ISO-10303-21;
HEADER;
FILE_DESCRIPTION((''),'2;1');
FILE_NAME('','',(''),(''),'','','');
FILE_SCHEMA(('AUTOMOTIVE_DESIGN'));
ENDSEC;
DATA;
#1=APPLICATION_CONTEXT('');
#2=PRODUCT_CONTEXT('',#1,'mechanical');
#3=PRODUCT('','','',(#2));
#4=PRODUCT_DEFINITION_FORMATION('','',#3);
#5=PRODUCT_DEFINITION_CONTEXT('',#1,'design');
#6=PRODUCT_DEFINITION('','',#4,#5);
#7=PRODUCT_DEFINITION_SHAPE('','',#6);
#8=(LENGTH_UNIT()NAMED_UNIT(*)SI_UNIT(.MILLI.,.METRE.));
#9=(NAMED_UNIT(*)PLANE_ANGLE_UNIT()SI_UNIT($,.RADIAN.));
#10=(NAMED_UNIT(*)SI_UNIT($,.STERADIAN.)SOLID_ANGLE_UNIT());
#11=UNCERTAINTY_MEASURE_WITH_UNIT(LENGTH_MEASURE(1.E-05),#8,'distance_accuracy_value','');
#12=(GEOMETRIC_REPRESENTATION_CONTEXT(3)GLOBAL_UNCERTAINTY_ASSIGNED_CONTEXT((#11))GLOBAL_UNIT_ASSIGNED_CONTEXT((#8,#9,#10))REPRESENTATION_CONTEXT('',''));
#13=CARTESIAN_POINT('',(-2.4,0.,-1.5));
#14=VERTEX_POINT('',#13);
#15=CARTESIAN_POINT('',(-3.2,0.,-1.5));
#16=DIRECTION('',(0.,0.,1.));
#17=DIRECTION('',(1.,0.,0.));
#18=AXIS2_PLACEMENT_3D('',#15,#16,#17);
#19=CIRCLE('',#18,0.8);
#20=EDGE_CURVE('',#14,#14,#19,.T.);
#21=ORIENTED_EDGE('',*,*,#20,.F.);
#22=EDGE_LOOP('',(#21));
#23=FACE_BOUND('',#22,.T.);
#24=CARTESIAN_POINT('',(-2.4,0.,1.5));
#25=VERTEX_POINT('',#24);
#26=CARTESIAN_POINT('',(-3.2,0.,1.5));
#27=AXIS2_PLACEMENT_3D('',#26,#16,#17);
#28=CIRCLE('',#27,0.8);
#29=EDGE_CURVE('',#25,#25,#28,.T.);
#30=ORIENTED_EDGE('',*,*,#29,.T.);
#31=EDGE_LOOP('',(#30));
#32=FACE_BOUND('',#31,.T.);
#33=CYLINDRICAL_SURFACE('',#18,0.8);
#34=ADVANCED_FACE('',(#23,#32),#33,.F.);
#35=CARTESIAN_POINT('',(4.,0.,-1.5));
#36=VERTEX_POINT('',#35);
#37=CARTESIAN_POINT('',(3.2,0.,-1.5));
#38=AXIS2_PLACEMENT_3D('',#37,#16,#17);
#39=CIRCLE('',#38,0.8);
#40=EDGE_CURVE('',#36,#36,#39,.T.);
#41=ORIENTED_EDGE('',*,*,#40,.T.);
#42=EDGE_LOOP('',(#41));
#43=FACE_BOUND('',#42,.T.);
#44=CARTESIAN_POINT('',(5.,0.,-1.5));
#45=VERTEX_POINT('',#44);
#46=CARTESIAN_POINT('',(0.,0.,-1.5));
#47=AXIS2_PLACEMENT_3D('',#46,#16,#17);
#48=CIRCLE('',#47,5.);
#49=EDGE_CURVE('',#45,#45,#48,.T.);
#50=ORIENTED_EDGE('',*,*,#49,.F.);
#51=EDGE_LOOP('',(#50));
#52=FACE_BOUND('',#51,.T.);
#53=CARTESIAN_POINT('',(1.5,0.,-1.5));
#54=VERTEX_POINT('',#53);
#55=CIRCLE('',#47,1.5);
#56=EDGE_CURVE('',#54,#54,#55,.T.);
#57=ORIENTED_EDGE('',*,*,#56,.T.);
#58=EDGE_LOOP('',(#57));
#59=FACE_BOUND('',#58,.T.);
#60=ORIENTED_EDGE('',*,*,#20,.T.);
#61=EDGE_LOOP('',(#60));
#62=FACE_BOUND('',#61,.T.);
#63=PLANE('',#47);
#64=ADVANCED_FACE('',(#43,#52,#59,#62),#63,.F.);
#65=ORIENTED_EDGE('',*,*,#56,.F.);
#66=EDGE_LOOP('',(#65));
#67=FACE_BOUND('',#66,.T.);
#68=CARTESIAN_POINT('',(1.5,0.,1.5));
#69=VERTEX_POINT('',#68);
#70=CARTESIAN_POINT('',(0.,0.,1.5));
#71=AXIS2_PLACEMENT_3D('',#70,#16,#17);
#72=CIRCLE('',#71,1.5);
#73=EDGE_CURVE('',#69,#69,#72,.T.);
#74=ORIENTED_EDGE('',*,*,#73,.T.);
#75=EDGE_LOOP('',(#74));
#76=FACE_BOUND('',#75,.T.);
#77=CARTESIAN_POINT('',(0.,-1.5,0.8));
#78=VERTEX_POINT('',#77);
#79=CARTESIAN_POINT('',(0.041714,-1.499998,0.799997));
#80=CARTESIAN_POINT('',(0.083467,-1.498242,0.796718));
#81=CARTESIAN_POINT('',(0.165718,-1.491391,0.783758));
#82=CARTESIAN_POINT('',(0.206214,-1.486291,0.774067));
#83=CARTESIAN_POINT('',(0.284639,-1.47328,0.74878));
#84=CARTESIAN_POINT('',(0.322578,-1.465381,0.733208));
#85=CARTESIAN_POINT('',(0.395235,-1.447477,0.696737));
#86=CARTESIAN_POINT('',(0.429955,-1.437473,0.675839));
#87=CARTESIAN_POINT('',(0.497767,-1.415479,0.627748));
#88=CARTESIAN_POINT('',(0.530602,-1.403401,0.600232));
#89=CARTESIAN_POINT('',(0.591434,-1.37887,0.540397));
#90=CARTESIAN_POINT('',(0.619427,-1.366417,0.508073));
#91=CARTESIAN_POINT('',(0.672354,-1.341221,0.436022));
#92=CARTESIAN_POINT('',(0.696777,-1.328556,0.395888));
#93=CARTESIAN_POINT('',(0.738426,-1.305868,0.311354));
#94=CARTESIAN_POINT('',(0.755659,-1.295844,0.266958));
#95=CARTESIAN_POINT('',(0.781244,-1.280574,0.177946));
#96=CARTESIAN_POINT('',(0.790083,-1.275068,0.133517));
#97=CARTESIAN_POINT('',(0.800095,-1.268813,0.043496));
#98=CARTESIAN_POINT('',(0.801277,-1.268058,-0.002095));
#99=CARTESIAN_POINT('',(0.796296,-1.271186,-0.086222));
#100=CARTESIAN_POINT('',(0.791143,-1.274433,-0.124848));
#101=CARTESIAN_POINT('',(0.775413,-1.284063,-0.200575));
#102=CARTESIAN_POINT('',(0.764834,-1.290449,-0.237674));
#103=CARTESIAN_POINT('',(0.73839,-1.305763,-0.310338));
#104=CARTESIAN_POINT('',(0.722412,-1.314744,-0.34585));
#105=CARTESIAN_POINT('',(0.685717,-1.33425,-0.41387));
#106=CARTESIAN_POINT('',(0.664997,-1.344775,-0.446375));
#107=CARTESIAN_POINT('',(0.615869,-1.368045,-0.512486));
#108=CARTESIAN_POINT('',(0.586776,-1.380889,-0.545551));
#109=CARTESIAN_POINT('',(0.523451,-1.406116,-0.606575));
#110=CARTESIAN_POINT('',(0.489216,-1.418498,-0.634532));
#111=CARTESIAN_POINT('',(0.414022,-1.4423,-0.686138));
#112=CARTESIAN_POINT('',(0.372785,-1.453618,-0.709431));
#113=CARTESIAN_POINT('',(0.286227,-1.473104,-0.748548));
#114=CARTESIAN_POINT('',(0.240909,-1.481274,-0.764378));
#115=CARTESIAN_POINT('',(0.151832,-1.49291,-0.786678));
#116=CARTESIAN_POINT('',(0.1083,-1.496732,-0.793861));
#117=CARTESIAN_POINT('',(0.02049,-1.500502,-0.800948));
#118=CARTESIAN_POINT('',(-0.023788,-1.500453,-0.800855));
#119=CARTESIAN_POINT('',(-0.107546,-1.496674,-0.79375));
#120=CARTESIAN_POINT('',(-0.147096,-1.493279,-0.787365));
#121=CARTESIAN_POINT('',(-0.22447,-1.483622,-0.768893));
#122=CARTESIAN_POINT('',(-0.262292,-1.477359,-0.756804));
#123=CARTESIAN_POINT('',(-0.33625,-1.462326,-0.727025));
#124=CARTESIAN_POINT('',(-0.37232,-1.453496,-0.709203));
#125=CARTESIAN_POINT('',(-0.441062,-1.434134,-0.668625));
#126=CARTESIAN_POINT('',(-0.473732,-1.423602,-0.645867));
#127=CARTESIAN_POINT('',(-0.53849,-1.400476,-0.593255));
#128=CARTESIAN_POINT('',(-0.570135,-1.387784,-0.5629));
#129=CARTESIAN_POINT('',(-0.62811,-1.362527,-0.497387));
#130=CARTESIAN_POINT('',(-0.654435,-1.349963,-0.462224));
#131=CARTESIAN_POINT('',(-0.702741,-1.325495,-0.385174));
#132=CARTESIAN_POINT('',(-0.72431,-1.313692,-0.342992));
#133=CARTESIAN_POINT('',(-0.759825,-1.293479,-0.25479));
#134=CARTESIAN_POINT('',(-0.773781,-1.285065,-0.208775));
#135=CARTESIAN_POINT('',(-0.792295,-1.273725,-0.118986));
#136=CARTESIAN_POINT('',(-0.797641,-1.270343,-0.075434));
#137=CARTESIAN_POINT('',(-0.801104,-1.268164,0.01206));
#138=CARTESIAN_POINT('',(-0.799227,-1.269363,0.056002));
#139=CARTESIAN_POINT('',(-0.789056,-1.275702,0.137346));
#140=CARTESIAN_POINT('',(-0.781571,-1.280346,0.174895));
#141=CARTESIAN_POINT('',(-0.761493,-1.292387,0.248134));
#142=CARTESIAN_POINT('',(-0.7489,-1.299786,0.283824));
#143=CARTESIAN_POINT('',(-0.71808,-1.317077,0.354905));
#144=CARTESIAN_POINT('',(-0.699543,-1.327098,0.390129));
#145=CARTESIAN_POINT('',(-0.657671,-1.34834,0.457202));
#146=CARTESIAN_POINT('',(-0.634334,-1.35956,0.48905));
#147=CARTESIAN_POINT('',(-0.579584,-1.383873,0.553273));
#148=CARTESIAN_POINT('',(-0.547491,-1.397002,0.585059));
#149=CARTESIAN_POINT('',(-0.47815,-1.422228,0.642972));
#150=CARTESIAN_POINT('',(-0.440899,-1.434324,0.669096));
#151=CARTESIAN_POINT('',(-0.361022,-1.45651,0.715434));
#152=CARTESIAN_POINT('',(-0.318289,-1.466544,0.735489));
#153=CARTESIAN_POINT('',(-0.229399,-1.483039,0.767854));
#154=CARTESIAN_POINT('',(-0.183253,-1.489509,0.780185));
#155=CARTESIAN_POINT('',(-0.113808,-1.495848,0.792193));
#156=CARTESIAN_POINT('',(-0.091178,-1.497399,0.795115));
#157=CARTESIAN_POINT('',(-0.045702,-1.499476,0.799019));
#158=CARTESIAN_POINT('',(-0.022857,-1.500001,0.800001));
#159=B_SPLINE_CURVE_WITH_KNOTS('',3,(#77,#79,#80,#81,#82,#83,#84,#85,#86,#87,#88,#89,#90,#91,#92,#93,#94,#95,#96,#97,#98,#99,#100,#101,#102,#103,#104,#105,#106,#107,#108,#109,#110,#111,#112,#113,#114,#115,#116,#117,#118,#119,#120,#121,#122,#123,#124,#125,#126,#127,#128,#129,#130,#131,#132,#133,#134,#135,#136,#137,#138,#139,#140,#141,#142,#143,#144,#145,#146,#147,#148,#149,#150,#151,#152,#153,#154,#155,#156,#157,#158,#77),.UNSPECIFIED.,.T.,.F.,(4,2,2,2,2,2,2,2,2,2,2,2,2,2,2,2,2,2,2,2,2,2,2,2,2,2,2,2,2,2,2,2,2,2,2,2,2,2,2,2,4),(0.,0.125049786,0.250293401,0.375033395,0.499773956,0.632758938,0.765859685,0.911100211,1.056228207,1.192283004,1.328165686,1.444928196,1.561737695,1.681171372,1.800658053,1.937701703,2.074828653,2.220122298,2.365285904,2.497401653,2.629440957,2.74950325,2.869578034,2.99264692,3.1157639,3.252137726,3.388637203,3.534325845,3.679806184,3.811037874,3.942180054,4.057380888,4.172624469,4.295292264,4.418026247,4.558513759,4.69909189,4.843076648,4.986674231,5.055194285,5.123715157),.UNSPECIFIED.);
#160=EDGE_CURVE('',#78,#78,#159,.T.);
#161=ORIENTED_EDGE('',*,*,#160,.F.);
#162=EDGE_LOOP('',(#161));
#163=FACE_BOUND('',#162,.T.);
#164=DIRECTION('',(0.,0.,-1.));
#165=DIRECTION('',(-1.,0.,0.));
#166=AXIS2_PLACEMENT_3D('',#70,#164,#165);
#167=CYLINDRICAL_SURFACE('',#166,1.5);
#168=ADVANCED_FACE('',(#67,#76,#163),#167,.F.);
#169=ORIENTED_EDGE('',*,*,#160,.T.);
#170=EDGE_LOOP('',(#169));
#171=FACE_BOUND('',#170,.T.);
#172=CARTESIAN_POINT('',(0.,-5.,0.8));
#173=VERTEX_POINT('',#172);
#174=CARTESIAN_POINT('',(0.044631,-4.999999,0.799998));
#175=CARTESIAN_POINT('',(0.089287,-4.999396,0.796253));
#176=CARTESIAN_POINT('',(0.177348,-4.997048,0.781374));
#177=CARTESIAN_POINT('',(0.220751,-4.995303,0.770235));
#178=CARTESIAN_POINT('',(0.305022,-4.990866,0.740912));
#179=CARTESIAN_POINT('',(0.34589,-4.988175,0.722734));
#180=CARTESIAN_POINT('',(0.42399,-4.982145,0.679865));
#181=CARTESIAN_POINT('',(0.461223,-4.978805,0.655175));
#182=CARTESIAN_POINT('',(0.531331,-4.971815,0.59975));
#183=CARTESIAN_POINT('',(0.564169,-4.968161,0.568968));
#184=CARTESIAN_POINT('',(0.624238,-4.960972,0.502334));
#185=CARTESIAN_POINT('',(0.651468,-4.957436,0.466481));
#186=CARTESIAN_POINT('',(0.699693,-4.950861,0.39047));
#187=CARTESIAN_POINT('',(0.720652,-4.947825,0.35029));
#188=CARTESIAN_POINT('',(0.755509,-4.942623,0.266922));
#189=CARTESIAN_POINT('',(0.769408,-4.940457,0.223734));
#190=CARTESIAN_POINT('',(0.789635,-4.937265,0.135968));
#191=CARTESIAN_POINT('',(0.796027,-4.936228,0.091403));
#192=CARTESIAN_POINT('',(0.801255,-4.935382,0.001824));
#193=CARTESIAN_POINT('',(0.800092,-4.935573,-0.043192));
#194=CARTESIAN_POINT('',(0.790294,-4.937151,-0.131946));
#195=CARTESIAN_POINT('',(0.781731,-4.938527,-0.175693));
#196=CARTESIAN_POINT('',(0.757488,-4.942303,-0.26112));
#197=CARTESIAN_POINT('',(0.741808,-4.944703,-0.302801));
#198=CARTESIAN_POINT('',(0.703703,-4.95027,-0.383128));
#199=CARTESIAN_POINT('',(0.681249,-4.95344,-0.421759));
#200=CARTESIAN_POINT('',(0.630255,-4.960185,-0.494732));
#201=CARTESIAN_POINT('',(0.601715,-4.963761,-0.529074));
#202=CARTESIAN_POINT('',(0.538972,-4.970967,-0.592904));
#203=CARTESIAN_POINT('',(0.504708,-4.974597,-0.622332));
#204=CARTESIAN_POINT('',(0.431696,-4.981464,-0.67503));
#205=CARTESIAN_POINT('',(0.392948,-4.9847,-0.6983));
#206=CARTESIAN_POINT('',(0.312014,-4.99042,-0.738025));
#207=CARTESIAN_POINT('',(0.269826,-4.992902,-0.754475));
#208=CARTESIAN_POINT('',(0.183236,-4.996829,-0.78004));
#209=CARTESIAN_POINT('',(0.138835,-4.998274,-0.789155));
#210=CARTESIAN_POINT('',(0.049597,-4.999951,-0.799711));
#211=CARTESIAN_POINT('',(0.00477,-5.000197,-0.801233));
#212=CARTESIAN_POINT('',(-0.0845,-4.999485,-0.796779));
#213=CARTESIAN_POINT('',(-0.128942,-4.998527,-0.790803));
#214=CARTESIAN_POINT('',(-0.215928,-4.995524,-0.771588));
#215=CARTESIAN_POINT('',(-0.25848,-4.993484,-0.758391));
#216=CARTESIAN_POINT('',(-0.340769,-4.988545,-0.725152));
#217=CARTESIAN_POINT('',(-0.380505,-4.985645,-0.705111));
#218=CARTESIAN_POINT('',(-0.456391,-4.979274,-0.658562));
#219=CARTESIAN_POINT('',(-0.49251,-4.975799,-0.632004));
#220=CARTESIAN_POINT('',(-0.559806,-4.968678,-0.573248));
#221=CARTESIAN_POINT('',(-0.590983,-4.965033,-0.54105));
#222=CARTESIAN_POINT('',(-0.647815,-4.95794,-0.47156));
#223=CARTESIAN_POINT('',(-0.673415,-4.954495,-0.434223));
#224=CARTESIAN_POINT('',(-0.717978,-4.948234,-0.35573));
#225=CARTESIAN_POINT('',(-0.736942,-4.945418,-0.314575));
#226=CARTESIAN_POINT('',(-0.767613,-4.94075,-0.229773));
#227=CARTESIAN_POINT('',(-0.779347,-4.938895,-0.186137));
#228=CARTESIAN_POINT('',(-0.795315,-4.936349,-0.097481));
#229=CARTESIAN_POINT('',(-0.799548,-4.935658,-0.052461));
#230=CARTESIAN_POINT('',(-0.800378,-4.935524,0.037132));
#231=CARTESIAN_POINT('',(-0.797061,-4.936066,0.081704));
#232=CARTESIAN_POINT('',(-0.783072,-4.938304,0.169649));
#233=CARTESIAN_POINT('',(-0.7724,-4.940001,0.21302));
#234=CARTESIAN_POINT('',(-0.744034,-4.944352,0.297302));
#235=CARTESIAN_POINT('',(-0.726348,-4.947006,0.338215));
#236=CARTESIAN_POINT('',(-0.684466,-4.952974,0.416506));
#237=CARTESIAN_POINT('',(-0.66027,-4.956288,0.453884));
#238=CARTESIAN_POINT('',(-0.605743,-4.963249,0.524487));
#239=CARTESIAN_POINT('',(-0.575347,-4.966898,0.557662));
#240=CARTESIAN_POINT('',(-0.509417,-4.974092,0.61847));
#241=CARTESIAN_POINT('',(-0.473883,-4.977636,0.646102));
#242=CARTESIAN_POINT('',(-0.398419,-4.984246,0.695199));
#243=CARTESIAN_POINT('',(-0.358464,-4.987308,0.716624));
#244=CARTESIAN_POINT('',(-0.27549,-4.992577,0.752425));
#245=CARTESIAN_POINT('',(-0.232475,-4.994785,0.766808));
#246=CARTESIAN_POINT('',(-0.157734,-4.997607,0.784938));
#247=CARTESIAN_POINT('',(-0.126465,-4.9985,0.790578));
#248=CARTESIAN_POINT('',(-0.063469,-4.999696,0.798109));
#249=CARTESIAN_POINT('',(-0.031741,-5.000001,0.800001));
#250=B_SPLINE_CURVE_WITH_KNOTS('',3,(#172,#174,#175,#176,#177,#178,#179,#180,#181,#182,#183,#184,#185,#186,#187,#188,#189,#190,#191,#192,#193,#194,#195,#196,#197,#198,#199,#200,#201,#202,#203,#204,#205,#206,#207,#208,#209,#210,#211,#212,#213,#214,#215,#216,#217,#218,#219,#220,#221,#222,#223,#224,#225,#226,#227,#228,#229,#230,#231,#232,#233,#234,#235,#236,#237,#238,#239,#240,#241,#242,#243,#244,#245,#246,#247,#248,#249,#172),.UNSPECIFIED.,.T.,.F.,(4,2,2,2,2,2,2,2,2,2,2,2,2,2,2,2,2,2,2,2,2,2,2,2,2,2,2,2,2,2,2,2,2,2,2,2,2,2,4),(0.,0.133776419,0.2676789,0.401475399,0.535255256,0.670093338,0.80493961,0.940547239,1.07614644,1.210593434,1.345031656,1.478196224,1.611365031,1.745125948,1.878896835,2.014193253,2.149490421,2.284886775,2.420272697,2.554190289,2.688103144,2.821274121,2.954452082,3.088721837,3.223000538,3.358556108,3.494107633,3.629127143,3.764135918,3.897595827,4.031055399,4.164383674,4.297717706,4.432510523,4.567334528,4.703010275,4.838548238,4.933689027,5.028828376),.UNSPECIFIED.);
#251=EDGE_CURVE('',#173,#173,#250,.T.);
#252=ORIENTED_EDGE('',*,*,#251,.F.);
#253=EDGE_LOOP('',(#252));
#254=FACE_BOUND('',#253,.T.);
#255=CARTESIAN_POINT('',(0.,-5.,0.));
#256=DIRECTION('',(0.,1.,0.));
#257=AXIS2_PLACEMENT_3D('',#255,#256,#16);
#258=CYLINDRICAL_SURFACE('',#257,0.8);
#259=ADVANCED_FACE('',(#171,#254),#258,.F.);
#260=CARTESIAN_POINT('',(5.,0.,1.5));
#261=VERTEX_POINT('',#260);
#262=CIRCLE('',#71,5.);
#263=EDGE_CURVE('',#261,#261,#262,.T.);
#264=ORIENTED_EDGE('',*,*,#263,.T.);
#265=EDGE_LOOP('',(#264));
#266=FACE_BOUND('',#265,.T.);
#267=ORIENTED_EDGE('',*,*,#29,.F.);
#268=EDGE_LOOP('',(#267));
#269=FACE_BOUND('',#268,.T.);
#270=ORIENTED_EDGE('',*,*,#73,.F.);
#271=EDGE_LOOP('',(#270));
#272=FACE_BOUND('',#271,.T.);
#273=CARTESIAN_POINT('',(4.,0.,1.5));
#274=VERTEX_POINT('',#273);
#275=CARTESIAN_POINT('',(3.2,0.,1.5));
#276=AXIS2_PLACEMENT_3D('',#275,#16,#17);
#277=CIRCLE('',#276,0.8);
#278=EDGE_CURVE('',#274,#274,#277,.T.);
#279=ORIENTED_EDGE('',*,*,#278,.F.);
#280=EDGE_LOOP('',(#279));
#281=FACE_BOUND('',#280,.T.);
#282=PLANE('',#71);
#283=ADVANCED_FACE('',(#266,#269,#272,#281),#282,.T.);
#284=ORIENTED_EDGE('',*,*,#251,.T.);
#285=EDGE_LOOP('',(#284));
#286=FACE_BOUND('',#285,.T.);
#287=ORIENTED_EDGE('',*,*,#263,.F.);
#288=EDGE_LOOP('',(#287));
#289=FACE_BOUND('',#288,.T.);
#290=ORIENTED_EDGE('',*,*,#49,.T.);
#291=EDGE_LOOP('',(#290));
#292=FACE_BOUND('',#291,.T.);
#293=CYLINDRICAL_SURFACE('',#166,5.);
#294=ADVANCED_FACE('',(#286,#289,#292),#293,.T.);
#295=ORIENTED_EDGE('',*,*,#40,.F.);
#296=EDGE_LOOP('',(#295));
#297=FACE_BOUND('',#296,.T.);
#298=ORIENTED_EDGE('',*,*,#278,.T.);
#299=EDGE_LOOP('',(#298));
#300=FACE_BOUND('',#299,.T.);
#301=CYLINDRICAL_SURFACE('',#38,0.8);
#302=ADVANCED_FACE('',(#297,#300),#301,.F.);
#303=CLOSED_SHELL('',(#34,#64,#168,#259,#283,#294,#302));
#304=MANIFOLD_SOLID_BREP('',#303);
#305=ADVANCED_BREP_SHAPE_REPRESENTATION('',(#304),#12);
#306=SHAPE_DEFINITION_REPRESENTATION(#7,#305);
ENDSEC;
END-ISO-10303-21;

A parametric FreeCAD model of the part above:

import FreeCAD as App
import Part
import Sketcher

V = App.Vector
Q = App.Units.Quantity

doc = App.newDocument("Part")
body = doc.addObject("PartDesign::Body", "Body")

# Sketch on XY plane
sketch1 = body.newObject("Sketcher::SketchObject", "Sketch")
sketch1.AttachmentSupport = (doc.getObject("XY_Plane"), [""])
sketch1.MapMode = "FlatFace"
sketch1.addGeometry([
    Part.Circle(V(0, 0, 0), V(0, 0, 1), 5),
    Part.Circle(V(0, 0, 0), V(0, 0, 1), 1.5),
], False)
sketch1.addConstraint([
    Sketcher.Constraint("Coincident", 0, 3, -1, 1),
    Sketcher.Constraint("Coincident", 1, 3, -1, 1),
    Sketcher.Constraint("Diameter", 0, Q("10 mm")),
    Sketcher.Constraint("Diameter", 1, Q("3 mm")),
])
pad1 = body.newObject("PartDesign::Pad", "Pad")
pad1.Profile = sketch1
pad1.Length = 3
pad1.Midplane = True

# Sketch on XY plane
sketch2 = body.newObject("Sketcher::SketchObject", "Sketch001")
sketch2.AttachmentSupport = (doc.getObject("XY_Plane"), [""])
sketch2.MapMode = "FlatFace"
sketch2.addGeometry([
    Part.Circle(V(-3.2, 0, 0), V(0, 0, 1), 0.8),
    Part.Circle(V(3.2, 0, 0), V(0, 0, 1), 0.8),
], False)
sketch2.addConstraint([
    Sketcher.Constraint("Equal", 0, 1),
    Sketcher.Constraint("Symmetric", 0, 3, 1, 3, -1, 1),
    Sketcher.Constraint("PointOnObject", 0, 3, -1),
    Sketcher.Constraint("Diameter", 0, Q("1.6 mm")),
    Sketcher.Constraint("DistanceX", 0, 3, -1, 1, Q("3.2 mm")),
])
pocket1 = body.newObject("PartDesign::Pocket", "Pocket")
pocket1.Profile = sketch2
pocket1.Type = "ThroughAll"
pocket1.Midplane = True

# Sketch on XZ plane
sketch3 = body.newObject("Sketcher::SketchObject", "Sketch002")
sketch3.AttachmentSupport = (doc.getObject("XZ_Plane"), [""])
sketch3.MapMode = "FlatFace"
sketch3.addGeometry(Part.Circle(V(0, 0, 0), V(0, 0, 1), 0.8), False)
sketch3.addConstraint([
    Sketcher.Constraint("Coincident", 0, 3, -1, 1),
    Sketcher.Constraint("Diameter", 0, Q("1.6 mm")),
])
pocket2 = body.newObject("PartDesign::Pocket", "Pocket001")
pocket2.Profile = sketch3
pocket2.Type = "ThroughAll"
pocket2.Reversed = True

doc.recompute()
